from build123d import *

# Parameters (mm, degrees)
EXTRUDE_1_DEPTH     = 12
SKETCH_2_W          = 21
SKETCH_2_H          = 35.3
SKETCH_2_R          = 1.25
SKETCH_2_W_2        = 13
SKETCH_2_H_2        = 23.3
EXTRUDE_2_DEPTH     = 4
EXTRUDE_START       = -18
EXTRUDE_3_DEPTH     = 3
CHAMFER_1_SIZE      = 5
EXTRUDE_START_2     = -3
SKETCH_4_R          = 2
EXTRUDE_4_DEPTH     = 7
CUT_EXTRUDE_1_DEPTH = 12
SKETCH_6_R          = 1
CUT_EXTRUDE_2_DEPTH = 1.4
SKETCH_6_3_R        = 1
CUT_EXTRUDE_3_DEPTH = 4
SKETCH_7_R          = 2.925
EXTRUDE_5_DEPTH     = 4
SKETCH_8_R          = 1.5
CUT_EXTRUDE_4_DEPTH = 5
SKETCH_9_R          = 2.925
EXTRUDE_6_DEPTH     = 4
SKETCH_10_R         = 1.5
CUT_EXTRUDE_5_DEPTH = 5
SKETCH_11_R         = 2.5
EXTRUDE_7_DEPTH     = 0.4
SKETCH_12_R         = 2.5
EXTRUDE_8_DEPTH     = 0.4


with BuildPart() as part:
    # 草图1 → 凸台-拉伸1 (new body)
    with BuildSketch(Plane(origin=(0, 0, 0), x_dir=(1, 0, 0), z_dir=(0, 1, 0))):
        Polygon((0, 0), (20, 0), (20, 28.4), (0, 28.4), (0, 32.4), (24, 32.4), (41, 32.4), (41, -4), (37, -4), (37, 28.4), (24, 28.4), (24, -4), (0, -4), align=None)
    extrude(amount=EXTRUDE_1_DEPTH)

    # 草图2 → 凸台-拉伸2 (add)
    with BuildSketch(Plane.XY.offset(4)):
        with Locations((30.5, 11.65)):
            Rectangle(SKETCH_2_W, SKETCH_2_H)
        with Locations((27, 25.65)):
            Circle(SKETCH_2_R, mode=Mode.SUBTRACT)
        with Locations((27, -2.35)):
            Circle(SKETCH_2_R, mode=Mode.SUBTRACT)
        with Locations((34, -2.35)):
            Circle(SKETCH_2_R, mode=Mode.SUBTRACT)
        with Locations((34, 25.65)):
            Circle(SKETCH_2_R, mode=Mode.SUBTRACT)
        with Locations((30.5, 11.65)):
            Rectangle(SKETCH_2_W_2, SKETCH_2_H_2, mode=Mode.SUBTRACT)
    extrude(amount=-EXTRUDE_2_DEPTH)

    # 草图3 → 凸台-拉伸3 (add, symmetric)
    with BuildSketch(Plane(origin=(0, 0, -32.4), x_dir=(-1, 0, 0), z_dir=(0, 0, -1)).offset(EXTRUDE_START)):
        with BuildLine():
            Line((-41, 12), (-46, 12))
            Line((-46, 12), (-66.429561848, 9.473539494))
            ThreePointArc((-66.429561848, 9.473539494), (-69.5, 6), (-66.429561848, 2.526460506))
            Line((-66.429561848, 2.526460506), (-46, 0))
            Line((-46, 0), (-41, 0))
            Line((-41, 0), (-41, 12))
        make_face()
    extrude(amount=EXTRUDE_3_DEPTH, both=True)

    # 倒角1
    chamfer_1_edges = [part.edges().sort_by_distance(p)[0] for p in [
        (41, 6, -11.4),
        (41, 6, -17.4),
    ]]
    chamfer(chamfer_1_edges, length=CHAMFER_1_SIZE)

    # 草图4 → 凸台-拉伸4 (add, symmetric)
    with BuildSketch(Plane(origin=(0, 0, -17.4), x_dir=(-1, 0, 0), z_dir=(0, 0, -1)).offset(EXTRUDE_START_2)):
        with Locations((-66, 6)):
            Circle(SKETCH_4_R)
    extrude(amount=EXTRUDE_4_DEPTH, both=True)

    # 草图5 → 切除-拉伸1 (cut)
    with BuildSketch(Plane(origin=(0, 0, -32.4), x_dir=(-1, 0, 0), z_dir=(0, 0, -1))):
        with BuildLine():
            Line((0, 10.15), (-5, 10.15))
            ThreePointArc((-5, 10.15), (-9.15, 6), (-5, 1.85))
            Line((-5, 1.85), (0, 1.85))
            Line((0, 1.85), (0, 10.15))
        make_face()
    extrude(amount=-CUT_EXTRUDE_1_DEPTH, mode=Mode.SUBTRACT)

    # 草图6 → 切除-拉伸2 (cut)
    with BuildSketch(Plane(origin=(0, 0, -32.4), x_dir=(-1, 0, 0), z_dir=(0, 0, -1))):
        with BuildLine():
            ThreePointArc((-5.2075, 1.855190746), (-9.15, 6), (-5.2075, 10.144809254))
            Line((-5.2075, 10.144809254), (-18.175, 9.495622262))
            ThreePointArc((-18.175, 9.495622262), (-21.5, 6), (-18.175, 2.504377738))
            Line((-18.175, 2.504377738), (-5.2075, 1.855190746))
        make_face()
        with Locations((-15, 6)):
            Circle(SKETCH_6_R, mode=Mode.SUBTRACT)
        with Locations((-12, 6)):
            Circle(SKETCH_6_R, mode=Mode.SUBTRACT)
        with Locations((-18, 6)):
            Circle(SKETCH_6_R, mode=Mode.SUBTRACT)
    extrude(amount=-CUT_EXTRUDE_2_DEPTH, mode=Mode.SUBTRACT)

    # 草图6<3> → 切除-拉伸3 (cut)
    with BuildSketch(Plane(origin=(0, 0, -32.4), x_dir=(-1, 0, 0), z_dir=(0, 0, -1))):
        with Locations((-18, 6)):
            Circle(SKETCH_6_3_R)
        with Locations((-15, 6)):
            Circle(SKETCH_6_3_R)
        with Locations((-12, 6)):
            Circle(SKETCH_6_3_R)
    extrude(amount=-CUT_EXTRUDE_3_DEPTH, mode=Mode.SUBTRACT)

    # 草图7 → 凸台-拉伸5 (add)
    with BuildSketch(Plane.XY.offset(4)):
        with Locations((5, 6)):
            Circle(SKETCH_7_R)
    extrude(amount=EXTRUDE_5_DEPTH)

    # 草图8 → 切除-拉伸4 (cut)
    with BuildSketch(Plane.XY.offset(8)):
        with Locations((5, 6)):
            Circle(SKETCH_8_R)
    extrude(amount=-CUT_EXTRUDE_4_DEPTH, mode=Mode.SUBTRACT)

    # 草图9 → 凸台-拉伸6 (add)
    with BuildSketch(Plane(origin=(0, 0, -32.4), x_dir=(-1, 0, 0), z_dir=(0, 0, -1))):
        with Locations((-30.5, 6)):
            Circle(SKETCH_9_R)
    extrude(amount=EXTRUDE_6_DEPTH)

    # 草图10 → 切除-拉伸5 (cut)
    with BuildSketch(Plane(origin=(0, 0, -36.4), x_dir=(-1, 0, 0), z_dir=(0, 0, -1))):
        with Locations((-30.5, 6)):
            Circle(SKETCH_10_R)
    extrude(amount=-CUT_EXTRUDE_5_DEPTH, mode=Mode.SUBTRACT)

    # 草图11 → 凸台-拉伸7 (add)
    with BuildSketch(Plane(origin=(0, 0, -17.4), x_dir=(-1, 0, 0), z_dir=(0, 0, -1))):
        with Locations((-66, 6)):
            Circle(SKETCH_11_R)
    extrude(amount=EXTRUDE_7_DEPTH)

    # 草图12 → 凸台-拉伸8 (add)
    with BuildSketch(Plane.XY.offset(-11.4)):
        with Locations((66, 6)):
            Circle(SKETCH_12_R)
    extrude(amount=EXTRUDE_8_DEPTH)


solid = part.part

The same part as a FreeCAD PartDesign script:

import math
import FreeCAD as App
import Part
import Sketcher

V = App.Vector


def edges_at(feature, points):
    """Names of the edges that pass closest to the given points."""
    edges = feature.Shape.Edges
    near = lambda p: min(range(len(edges)), key=lambda i: edges[i].distToShape(Part.Vertex(*p))[0])
    return sorted({f"Edge{near(p) + 1}" for p in points})


def add_polygon(sketch, points):
    """Adds a closed chain of lines whose ends are joined by coincident constraints."""
    first, n = sketch.GeometryCount, len(points)
    for a, b in zip(points, points[1:] + points[:1]):
        sketch.addGeometry(Part.LineSegment(App.Vector(*a, 0), App.Vector(*b, 0)), False)
    for i in range(n):
        sketch.addConstraint(Sketcher.Constraint("Coincident", first + i, 2, first + (i + 1) % n, 1))

doc = App.newDocument("Part")
body = doc.addObject("PartDesign::Body", "Body")

sketch1 = body.newObject("Sketcher::SketchObject", "Sketch")
sketch1.AttachmentSupport = (doc.getObject("XZ_Plane"), [""])
sketch1.MapMode = "FlatFace"
add_polygon(sketch1, [(20, 0), (0, 0), (0, 4), (24, 4), (24, -28.4), (37, -28.4), (37, 4), (41, 4), (41, -32.4), (0, -32.4), (0, -28.4), (20, -28.4)])
sketch1.addConstraint([
    Sketcher.Constraint("Horizontal", 0),
    Sketcher.Constraint("Vertical", 1),
    Sketcher.Constraint("Horizontal", 2),
    Sketcher.Constraint("Vertical", 3),
    Sketcher.Constraint("Horizontal", 4),
    Sketcher.Constraint("Vertical", 5),
    Sketcher.Constraint("Horizontal", 6),
    Sketcher.Constraint("Vertical", 7),
    Sketcher.Constraint("Horizontal", 8),
    Sketcher.Constraint("Vertical", 9),
    Sketcher.Constraint("Horizontal", 10),
    Sketcher.Constraint("Vertical", 11),
    Sketcher.Constraint("Coincident", 0, 2, -1, 1),
    Sketcher.Constraint("PointOnObject", 8, 2, -2),
    Sketcher.Constraint("Horizontal", 2, 2, 5, 2),
    Sketcher.Constraint("Horizontal", 4, 2, 9, 2),
    Sketcher.Constraint("Equal", 6, 1),
    Sketcher.Constraint("Equal", 1, 9),
    Sketcher.Constraint("DistanceX", 0, 2, 0, 1, 20.0),
    Sketcher.Constraint("DistanceX", 2, 1, 2, 2, 24.0),
    Sketcher.Constraint("DistanceX", 4, 1, 4, 2, 13.0),
    Sketcher.Constraint("DistanceX", 6, 1, 6, 2, 4.0),
    Sketcher.Constraint("DistanceY", 3, 2, 3, 1, 32.4),
])
pad1 = body.newObject("PartDesign::Pad", "Pad")
pad1.Profile = sketch1
pad1.Length = 12
pad1.Reversed = True

sketch2 = body.newObject("Sketcher::SketchObject", "Sketch001")
sketch2.AttachmentSupport = (doc.getObject("XY_Plane"), [""])
sketch2.MapMode = "FlatFace"
sketch2.AttachmentOffset = App.Placement(V(0, 0, 4), App.Rotation())
add_polygon(sketch2, [(20, 29.3), (20, -6), (41, -6), (41, 29.3)])
sketch2.addGeometry(Part.Circle(V(27, -2.35, 0), V(0, 0, 1), 1.25), False)
sketch2.addGeometry(Part.Circle(V(34, -2.35, 0), V(0, 0, 1), 1.25), False)
sketch2.addGeometry(Part.Circle(V(27, 25.65, 0), V(0, 0, 1), 1.25), False)
add_polygon(sketch2, [(37, 0), (24, 0), (24, 23.3), (37, 23.3)])
sketch2.addGeometry(Part.Circle(V(34, 25.65, 0), V(0, 0, 1), 1.25), False)
sketch2.addConstraint([
    Sketcher.Constraint("Vertical", 0),
    Sketcher.Constraint("Horizontal", 1),
    Sketcher.Constraint("Vertical", 2),
    Sketcher.Constraint("Horizontal", 3),
    Sketcher.Constraint("Horizontal", 7),
    Sketcher.Constraint("Vertical", 8),
    Sketcher.Constraint("Horizontal", 9),
    Sketcher.Constraint("Vertical", 10),
    Sketcher.Constraint("Equal", 4, 5),
    Sketcher.Constraint("Equal", 5, 6),
    Sketcher.Constraint("Equal", 6, 11),
    Sketcher.Constraint("PointOnObject", 7, 2, -1),
    Sketcher.Constraint("Horizontal", 4, 3, 5, 3),
    Sketcher.Constraint("Horizontal", 6, 3, 11, 3),
    Sketcher.Constraint("Vertical", 4, 3, 6, 3),
    Sketcher.Constraint("Vertical", 5, 3, 11, 3),
    Sketcher.Constraint("Diameter", 4, 2.5),
    Sketcher.Constraint("DistanceX", 1, 1, 1, 2, 21.0),
    Sketcher.Constraint("DistanceX", 7, 2, 7, 1, 13.0),
    Sketcher.Constraint("DistanceY", 0, 2, 0, 1, 35.3),
    Sketcher.Constraint("DistanceY", 8, 1, 8, 2, 23.3),
    Sketcher.Constraint("DistanceX", -1, 1, 4, 3, 27.0),
    Sketcher.Constraint("DistanceX", -1, 1, 5, 3, 34.0),
    Sketcher.Constraint("DistanceX", -1, 1, 0, 2, 20.0),
    Sketcher.Constraint("DistanceY", 0, 2, -1, 1, 6.0),
    Sketcher.Constraint("DistanceX", -1, 1, 7, 2, 24.0),
    Sketcher.Constraint("DistanceY", 4, 3, 6, 3, 28.0),
    Sketcher.Constraint("DistanceY", 4, 3, -1, 1, 2.35),
])
pad2 = body.newObject("PartDesign::Pad", "Pad001")
pad2.Profile = sketch2
pad2.Length = 4
pad2.Reversed = True

sketch3 = body.newObject("Sketcher::SketchObject", "Sketch002")
sketch3.AttachmentSupport = (doc.getObject("XY_Plane"), [""])
sketch3.MapMode = "FlatFace"
sketch3.AttachmentOffset = App.Placement(V(0, 0, -14.4), App.Rotation())
sketch3.addGeometry([
    Part.LineSegment(V(41, 12, 0), V(46, 12, 0)),
    Part.LineSegment(V(46, 12, 0), V(66.429562, 9.473539, 0)),
    Part.ArcOfCircle(Part.Circle(V(66, 6, 0), V(0, 0, 1), 3.5), math.radians(-82.950202), math.radians(82.950202)),
    Part.LineSegment(V(66.429562, 2.526461, 0), V(46, 0, 0)),
    Part.LineSegment(V(46, 0, 0), V(41, 0, 0)),
    Part.LineSegment(V(41, 0, 0), V(41, 12, 0)),
], False)
sketch3.addConstraint([
    Sketcher.Constraint("Coincident", 0, 2, 1, 1),
    Sketcher.Constraint("Tangent", 1, 2, 2, 2),
    Sketcher.Constraint("Tangent", 2, 1, 3, 1),
    Sketcher.Constraint("Coincident", 3, 2, 4, 1),
    Sketcher.Constraint("Coincident", 4, 2, 5, 1),
    Sketcher.Constraint("Coincident", 5, 2, 0, 1),
    Sketcher.Constraint("Horizontal", 0),
    Sketcher.Constraint("Horizontal", 4),
    Sketcher.Constraint("Vertical", 5),
    Sketcher.Constraint("PointOnObject", 3, 2, -1),
    Sketcher.Constraint("Vertical", 1, 2, 2, 1),
    Sketcher.Constraint("Vertical", 0, 2, 3, 2),
    Sketcher.Constraint("Radius", 2, 3.5),
    Sketcher.Constraint("DistanceX", 0, 1, 0, 2, 5.0),
    Sketcher.Constraint("DistanceY", 5, 1, 5, 2, 12.0),
    Sketcher.Constraint("DistanceX", -1, 1, 2, 3, 66.0),
    Sketcher.Constraint("DistanceX", -1, 1, 0, 2, 46.0),
])
pad3 = body.newObject("PartDesign::Pad", "Pad002")
pad3.Profile = sketch3
pad3.Length = 6
pad3.Midplane = True
doc.recompute()

chamfer = body.newObject("PartDesign::Chamfer", "Chamfer")
chamfer.Base = (pad3, edges_at(pad3, [(41, 6, -11.4), (41, 6, -17.4)]))
chamfer.Size = 5

sketch4 = body.newObject("Sketcher::SketchObject", "Sketch003")
sketch4.AttachmentSupport = (doc.getObject("XY_Plane"), [""])
sketch4.MapMode = "FlatFace"
sketch4.AttachmentOffset = App.Placement(V(0, 0, -14.4), App.Rotation())
sketch4.addGeometry(Part.Circle(V(66, 6, 0), V(0, 0, 1), 2), False)
sketch4.addConstraint([
    Sketcher.Constraint("Diameter", 0, 4.0),
    Sketcher.Constraint("DistanceX", -1, 1, 0, 3, 66.0),
    Sketcher.Constraint("DistanceY", -1, 1, 0, 3, 6.0),
])
pad4 = body.newObject("PartDesign::Pad", "Pad003")
pad4.Profile = sketch4
pad4.Length = 14
pad4.Midplane = True

sketch5 = body.newObject("Sketcher::SketchObject", "Sketch004")
sketch5.AttachmentSupport = (doc.getObject("XY_Plane"), [""])
sketch5.MapMode = "FlatFace"
sketch5.AttachmentOffset = App.Placement(V(0, 0, -32.4), App.Rotation())
sketch5.addGeometry([
    Part.LineSegment(V(0, 10.15, 0), V(5, 10.15, 0)),
    Part.ArcOfCircle(Part.Circle(V(5, 6, 0), V(0, 0, 1), 4.15), math.radians(-90), math.radians(90)),
    Part.LineSegment(V(5, 1.85, 0), V(0, 1.85, 0)),
    Part.LineSegment(V(0, 1.85, 0), V(0, 10.15, 0)),
], False)
sketch5.addConstraint([
    Sketcher.Constraint("Tangent", 0, 2, 1, 2),
    Sketcher.Constraint("Tangent", 1, 1, 2, 1),
    Sketcher.Constraint("Coincident", 2, 2, 3, 1),
    Sketcher.Constraint("Coincident", 3, 2, 0, 1),
    Sketcher.Constraint("Horizontal", 0),
    Sketcher.Constraint("Horizontal", 2),
    Sketcher.Constraint("Vertical", 3),
    Sketcher.Constraint("PointOnObject", 2, 2, -2),
    Sketcher.Constraint("DistanceX", 0, 1, 0, 2, 5.0),
    Sketcher.Constraint("Radius", 1, 4.15),
    Sketcher.Constraint("DistanceY", -1, 1, 1, 3, 6.0),
])
pocket1 = body.newObject("PartDesign::Pocket", "Pocket")
pocket1.Profile = sketch5
pocket1.Length = 12
pocket1.Reversed = True

sketch6 = body.newObject("Sketcher::SketchObject", "Sketch005")
sketch6.AttachmentSupport = (doc.getObject("XY_Plane"), [""])
sketch6.MapMode = "FlatFace"
sketch6.AttachmentOffset = App.Placement(V(0, 0, -32.4), App.Rotation())
sketch6.addGeometry([
    Part.ArcOfCircle(Part.Circle(V(5, 6, 0), V(0, 0, 1), 4.15), math.radians(-87.134016), math.radians(87.134016)),
    Part.LineSegment(V(5.2075, 10.144809, 0), V(18.175, 9.495622, 0)),
    Part.ArcOfCircle(Part.Circle(V(18, 6, 0), V(0, 0, 1), 3.5), math.radians(-87.134016), math.radians(87.134016)),
    Part.LineSegment(V(18.175, 2.504378, 0), V(5.2075, 1.855191, 0)),
    Part.Circle(V(18, 6, 0), V(0, 0, 1), 1),
    Part.Circle(V(15, 6, 0), V(0, 0, 1), 1),
    Part.Circle(V(12, 6, 0), V(0, 0, 1), 1),
], False)
sketch6.addConstraint([
    Sketcher.Constraint("Tangent", 0, 2, 1, 1),
    Sketcher.Constraint("Tangent", 1, 2, 2, 2),
    Sketcher.Constraint("Tangent", 2, 1, 3, 1),
    Sketcher.Constraint("Tangent", 3, 2, 0, 1),
    Sketcher.Constraint("Coincident", 4, 3, 2, 3),
    Sketcher.Constraint("Equal", 4, 5),
    Sketcher.Constraint("Equal", 5, 6),
    Sketcher.Constraint("Horizontal", 0, 3, 2, 3),
    Sketcher.Constraint("Horizontal", 4, 3, 5, 3),
    Sketcher.Constraint("Horizontal", 5, 3, 6, 3),
    Sketcher.Constraint("Diameter", 4, 2.0),
    Sketcher.Constraint("Radius", 2, 3.5),
    Sketcher.Constraint("Radius", 0, 4.15),
    Sketcher.Constraint("DistanceX", -1, 1, 0, 3, 5.0),
    Sketcher.Constraint("DistanceY", -1, 1, 0, 3, 6.0),
    Sketcher.Constraint("DistanceX", -1, 1, 2, 3, 18.0),
    Sketcher.Constraint("DistanceX", -1, 1, 5, 3, 15.0),
    Sketcher.Constraint("DistanceX", -1, 1, 6, 3, 12.0),
])
pocket2 = body.newObject("PartDesign::Pocket", "Pocket001")
pocket2.Profile = sketch6
pocket2.Length = 1.4
pocket2.Reversed = True

sketch7 = body.newObject("Sketcher::SketchObject", "Sketch006")
sketch7.AttachmentSupport = (doc.getObject("XY_Plane"), [""])
sketch7.MapMode = "FlatFace"
sketch7.AttachmentOffset = App.Placement(V(0, 0, -32.4), App.Rotation())
sketch7.addGeometry([
    Part.Circle(V(18, 6, 0), V(0, 0, 1), 1),
    Part.Circle(V(15, 6, 0), V(0, 0, 1), 1),
    Part.Circle(V(12, 6, 0), V(0, 0, 1), 1),
], False)
sketch7.addConstraint([
    Sketcher.Constraint("Equal", 0, 1),
    Sketcher.Constraint("Equal", 1, 2),
    Sketcher.Constraint("Horizontal", 0, 3, 1, 3),
    Sketcher.Constraint("Horizontal", 1, 3, 2, 3),
    Sketcher.Constraint("Diameter", 0, 2.0),
    Sketcher.Constraint("DistanceX", -1, 1, 0, 3, 18.0),
    Sketcher.Constraint("DistanceY", -1, 1, 0, 3, 6.0),
    Sketcher.Constraint("DistanceX", -1, 1, 1, 3, 15.0),
    Sketcher.Constraint("DistanceX", -1, 1, 2, 3, 12.0),
])
pocket3 = body.newObject("PartDesign::Pocket", "Pocket002")
pocket3.Profile = sketch7
pocket3.Length = 4
pocket3.Reversed = True

sketch8 = body.newObject("Sketcher::SketchObject", "Sketch007")
sketch8.AttachmentSupport = (doc.getObject("XY_Plane"), [""])
sketch8.MapMode = "FlatFace"
sketch8.AttachmentOffset = App.Placement(V(0, 0, 4), App.Rotation())
sketch8.addGeometry(Part.Circle(V(5, 6, 0), V(0, 0, 1), 2.925), False)
sketch8.addConstraint([
    Sketcher.Constraint("Diameter", 0, 5.85),
    Sketcher.Constraint("DistanceX", -1, 1, 0, 3, 5.0),
    Sketcher.Constraint("DistanceY", -1, 1, 0, 3, 6.0),
])
pad5 = body.newObject("PartDesign::Pad", "Pad004")
pad5.Profile = sketch8
pad5.Length = 4

sketch9 = body.newObject("Sketcher::SketchObject", "Sketch008")
sketch9.AttachmentSupport = (doc.getObject("XY_Plane"), [""])
sketch9.MapMode = "FlatFace"
sketch9.AttachmentOffset = App.Placement(V(0, 0, 8), App.Rotation())
sketch9.addGeometry(Part.Circle(V(5, 6, 0), V(0, 0, 1), 1.5), False)
sketch9.addConstraint([
    Sketcher.Constraint("Diameter", 0, 3.0),
    Sketcher.Constraint("DistanceX", -1, 1, 0, 3, 5.0),
    Sketcher.Constraint("DistanceY", -1, 1, 0, 3, 6.0),
])
pocket4 = body.newObject("PartDesign::Pocket", "Pocket003")
pocket4.Profile = sketch9
pocket4.Length = 5

sketch10 = body.newObject("Sketcher::SketchObject", "Sketch009")
sketch10.AttachmentSupport = (doc.getObject("XY_Plane"), [""])
sketch10.MapMode = "FlatFace"
sketch10.AttachmentOffset = App.Placement(V(0, 0, -32.4), App.Rotation())
sketch10.addGeometry(Part.Circle(V(30.5, 6, 0), V(0, 0, 1), 2.925), False)
sketch10.addConstraint([
    Sketcher.Constraint("Diameter", 0, 5.85),
    Sketcher.Constraint("DistanceY", -1, 1, 0, 3, 6.0),
    Sketcher.Constraint("DistanceX", -1, 1, 0, 3, 30.5),
])
pad6 = body.newObject("PartDesign::Pad", "Pad005")
pad6.Profile = sketch10
pad6.Length = 4
pad6.Reversed = True

sketch11 = body.newObject("Sketcher::SketchObject", "Sketch010")
sketch11.AttachmentSupport = (doc.getObject("XY_Plane"), [""])
sketch11.MapMode = "FlatFace"
sketch11.AttachmentOffset = App.Placement(V(0, 0, -36.4), App.Rotation())
sketch11.addGeometry(Part.Circle(V(30.5, 6, 0), V(0, 0, 1), 1.5), False)
sketch11.addConstraint([
    Sketcher.Constraint("Diameter", 0, 3.0),
    Sketcher.Constraint("DistanceY", -1, 1, 0, 3, 6.0),
    Sketcher.Constraint("DistanceX", -1, 1, 0, 3, 30.5),
])
pocket5 = body.newObject("PartDesign::Pocket", "Pocket004")
pocket5.Profile = sketch11
pocket5.Length = 5
pocket5.Reversed = True

sketch12 = body.newObject("Sketcher::SketchObject", "Sketch011")
sketch12.AttachmentSupport = (doc.getObject("XY_Plane"), [""])
sketch12.MapMode = "FlatFace"
sketch12.AttachmentOffset = App.Placement(V(0, 0, -17.4), App.Rotation())
sketch12.addGeometry(Part.Circle(V(66, 6, 0), V(0, 0, 1), 2.5), False)
sketch12.addConstraint([
    Sketcher.Constraint("Diameter", 0, 5.0),
    Sketcher.Constraint("DistanceX", -1, 1, 0, 3, 66.0),
    Sketcher.Constraint("DistanceY", -1, 1, 0, 3, 6.0),
])
pad7 = body.newObject("PartDesign::Pad", "Pad006")
pad7.Profile = sketch12
pad7.Length = 0.4
pad7.Reversed = True

sketch13 = body.newObject("Sketcher::SketchObject", "Sketch012")
sketch13.AttachmentSupport = (doc.getObject("XY_Plane"), [""])
sketch13.MapMode = "FlatFace"
sketch13.AttachmentOffset = App.Placement(V(0, 0, -11.4), App.Rotation())
sketch13.addGeometry(Part.Circle(V(66, 6, 0), V(0, 0, 1), 2.5), False)
sketch13.addConstraint([
    Sketcher.Constraint("Diameter", 0, 5.0),
    Sketcher.Constraint("DistanceX", -1, 1, 0, 3, 66.0),
    Sketcher.Constraint("DistanceY", -1, 1, 0, 3, 6.0),
])
pad8 = body.newObject("PartDesign::Pad", "Pad007")
pad8.Profile = sketch13
pad8.Length = 0.4

doc.recompute()
